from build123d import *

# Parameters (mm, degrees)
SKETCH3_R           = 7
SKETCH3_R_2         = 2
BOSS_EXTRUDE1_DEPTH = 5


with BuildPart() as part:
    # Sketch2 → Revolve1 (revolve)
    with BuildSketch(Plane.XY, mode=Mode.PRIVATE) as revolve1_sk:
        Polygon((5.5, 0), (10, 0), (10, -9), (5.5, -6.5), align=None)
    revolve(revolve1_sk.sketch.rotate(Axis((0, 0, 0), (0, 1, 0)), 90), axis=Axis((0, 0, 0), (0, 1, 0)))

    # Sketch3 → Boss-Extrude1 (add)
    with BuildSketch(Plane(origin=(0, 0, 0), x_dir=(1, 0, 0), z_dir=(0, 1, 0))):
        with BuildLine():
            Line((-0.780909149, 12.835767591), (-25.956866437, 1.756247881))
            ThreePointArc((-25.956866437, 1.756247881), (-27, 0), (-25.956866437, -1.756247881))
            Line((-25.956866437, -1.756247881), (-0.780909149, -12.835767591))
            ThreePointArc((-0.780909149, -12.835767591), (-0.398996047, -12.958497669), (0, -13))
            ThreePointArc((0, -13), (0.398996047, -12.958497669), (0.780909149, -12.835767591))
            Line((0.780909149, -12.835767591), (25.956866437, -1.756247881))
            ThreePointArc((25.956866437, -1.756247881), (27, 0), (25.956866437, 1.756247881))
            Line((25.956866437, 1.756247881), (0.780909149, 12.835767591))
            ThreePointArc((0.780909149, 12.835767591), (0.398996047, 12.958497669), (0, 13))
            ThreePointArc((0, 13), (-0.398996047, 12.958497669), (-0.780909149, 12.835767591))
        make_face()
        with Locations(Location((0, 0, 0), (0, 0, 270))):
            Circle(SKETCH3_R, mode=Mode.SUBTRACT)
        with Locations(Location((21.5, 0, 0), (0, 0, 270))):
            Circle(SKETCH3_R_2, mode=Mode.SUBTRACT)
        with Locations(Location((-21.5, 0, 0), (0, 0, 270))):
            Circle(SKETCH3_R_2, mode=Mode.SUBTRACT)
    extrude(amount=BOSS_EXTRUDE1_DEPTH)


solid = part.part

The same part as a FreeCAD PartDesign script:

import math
import FreeCAD as App
import Part
import Sketcher

V = App.Vector


def add_polygon(sketch, points):
    """Adds a closed chain of lines whose ends are joined by coincident constraints."""
    first, n = sketch.GeometryCount, len(points)
    for a, b in zip(points, points[1:] + points[:1]):
        sketch.addGeometry(Part.LineSegment(App.Vector(*a, 0), App.Vector(*b, 0)), False)
    for i in range(n):
        sketch.addConstraint(Sketcher.Constraint("Coincident", first + i, 2, first + (i + 1) % n, 1))

doc = App.newDocument("Part")
body = doc.addObject("PartDesign::Body", "Body")

sketch1 = doc.addObject("Sketcher::SketchObject", "Sketch")
body.addObject(sketch1)
sketch1.AttachmentSupport = (doc.XY_Plane, [""])
sketch1.MapMode = "FlatFace"
add_polygon(sketch1, [(10, 0), (5.5, 0), (5.5, -6.5), (10, -9)])
sketch1.addConstraint([
    Sketcher.Constraint("Horizontal", 0),
    Sketcher.Constraint("Vertical", 1),
    Sketcher.Constraint("Vertical", 3),
    Sketcher.Constraint("PointOnObject", 0, 2, -1),
    Sketcher.Constraint("DistanceY", 3, 1, 3, 2, 9.0),
    Sketcher.Constraint("DistanceX", 0, 2, 0, 1, 4.5),
    Sketcher.Constraint("DistanceY", 1, 2, 1, 1, 6.5),
    Sketcher.Constraint("DistanceX", -1, 1, 2, 2, 10.0),
])
revolution = doc.addObject("PartDesign::Revolution", "Revolution")
body.addObject(revolution)
revolution.Profile = sketch1
revolution.ReferenceAxis = (sketch1, ["V_Axis"])
revolution.Angle = 360

sketch2 = doc.addObject("Sketcher::SketchObject", "Sketch001")
body.addObject(sketch2)
sketch2.AttachmentSupport = (doc.XZ_Plane, [""])
sketch2.MapMode = "FlatFace"
sketch2.addGeometry([
    Part.LineSegment(V(-0.780909, -12.835768, 0), V(-25.956866, -1.756248, 0)),
    Part.ArcOfCircle(Part.Circle(V(-25, 0, 0), V(0, 0, 1), 2), math.radians(118.583123), math.radians(241.416877)),
    Part.LineSegment(V(-25.956866, 1.756248, 0), V(-0.780909, 12.835768, 0)),
    Part.ArcOfCircle(Part.Circle(V(0, 11.06131, 0), V(0, 0, 1), 1.93869), math.radians(90), math.radians(113.753496)),
    Part.ArcOfCircle(Part.Circle(V(0, 11.06131, 0), V(0, 0, 1), 1.93869), math.radians(66.246504), math.radians(90)),
    Part.LineSegment(V(0.780909, 12.835768, 0), V(25.956866, 1.756248, 0)),
    Part.ArcOfCircle(Part.Circle(V(25, 0, 0), V(0, 0, 1), 2), math.radians(-61.416877), math.radians(61.416877)),
    Part.LineSegment(V(25.956866, -1.756248, 0), V(0.780909, -12.835768, 0)),
    Part.ArcOfCircle(Part.Circle(V(0, -11.06131, 0), V(0, 0, 1), 1.93869), math.radians(-90), math.radians(-66.246504)),
    Part.ArcOfCircle(Part.Circle(V(0, -11.06131, 0), V(0, 0, 1), 1.93869), math.radians(-113.753496), math.radians(-90)),
    Part.Circle(V(-21.5, 0, 0), V(0, 0, 1), 2),
    Part.Circle(V(0, 0, 0), V(0, 0, 1), 7),
    Part.Circle(V(21.5, 0, 0), V(0, 0, 1), 2),
], False)
sketch2.addConstraint([
    Sketcher.Constraint("Coincident", 0, 2, 1, 2),
    Sketcher.Constraint("Coincident", 1, 1, 2, 1),
    Sketcher.Constraint("Coincident", 2, 2, 3, 2),
    Sketcher.Constraint("Coincident", 3, 1, 4, 2),
    Sketcher.Constraint("Coincident", 4, 1, 5, 1),
    Sketcher.Constraint("Coincident", 5, 2, 6, 2),
    Sketcher.Constraint("Coincident", 6, 1, 7, 1),
    Sketcher.Constraint("Coincident", 7, 2, 8, 2),
    Sketcher.Constraint("Coincident", 8, 1, 9, 2),
    Sketcher.Constraint("Coincident", 9, 1, 0, 1),
    Sketcher.Constraint("Coincident", 11, 3, -1, 1),
    Sketcher.Constraint("Coincident", 4, 3, 3, 3),
    Sketcher.Constraint("Coincident", 9, 3, 8, 3),
    Sketcher.Constraint("PointOnObject", 1, 3, -1),
    Sketcher.Constraint("PointOnObject", 3, 3, -2),
    Sketcher.Constraint("PointOnObject", 6, 3, -1),
    Sketcher.Constraint("PointOnObject", 8, 3, -2),
    Sketcher.Constraint("PointOnObject", 10, 3, -1),
    Sketcher.Constraint("PointOnObject", 12, 3, -1),
    Sketcher.Constraint("PointOnObject", 3, 1, -2),
    Sketcher.Constraint("PointOnObject", 8, 1, -2),
    Sketcher.Constraint("Diameter", 10, 4.0),
    Sketcher.Constraint("Diameter", 11, 14.0),
    Sketcher.Constraint("Diameter", 12, 4.0),
    Sketcher.Constraint("Radius", 1, 2.0),
    Sketcher.Constraint("Radius", 6, 2.0),
    Sketcher.Constraint("DistanceX", 1, 3, -1, 1, 25.0),
    Sketcher.Constraint("DistanceX", -1, 1, 6, 3, 25.0),
    Sketcher.Constraint("DistanceY", -1, 1, 3, 1, 13.0),
    Sketcher.Constraint("DistanceY", 8, 1, -1, 1, 13.0),
    Sketcher.Constraint("DistanceX", 10, 3, -1, 1, 21.5),
    Sketcher.Constraint("DistanceX", -1, 1, 12, 3, 21.5),
    Sketcher.Constraint("Radius", 3, 1.93869),
    Sketcher.Constraint("Radius", 8, 1.93869),
    Sketcher.Constraint("DistanceX", 2, 2, -1, 1, 0.780909),
    Sketcher.Constraint("DistanceX", -1, 1, 4, 1, 0.780909),
    Sketcher.Constraint("DistanceX", -1, 1, 7, 2, 0.780909),
    Sketcher.Constraint("DistanceX", 9, 1, -1, 1, 0.780909),
    Sketcher.Constraint("DistanceY", 5, 2, 4, 1, 11.07952),
    Sketcher.Constraint("Distance", 0, 27.506083),
    Sketcher.Constraint("Distance", 2, 27.506083),
    Sketcher.Constraint("Distance", 7, 27.506083),
])
pad1 = doc.addObject("PartDesign::Pad", "Pad")
body.addObject(pad1)
pad1.Profile = sketch2
pad1.Length = 5
pad1.Reversed = True

doc.recompute()
